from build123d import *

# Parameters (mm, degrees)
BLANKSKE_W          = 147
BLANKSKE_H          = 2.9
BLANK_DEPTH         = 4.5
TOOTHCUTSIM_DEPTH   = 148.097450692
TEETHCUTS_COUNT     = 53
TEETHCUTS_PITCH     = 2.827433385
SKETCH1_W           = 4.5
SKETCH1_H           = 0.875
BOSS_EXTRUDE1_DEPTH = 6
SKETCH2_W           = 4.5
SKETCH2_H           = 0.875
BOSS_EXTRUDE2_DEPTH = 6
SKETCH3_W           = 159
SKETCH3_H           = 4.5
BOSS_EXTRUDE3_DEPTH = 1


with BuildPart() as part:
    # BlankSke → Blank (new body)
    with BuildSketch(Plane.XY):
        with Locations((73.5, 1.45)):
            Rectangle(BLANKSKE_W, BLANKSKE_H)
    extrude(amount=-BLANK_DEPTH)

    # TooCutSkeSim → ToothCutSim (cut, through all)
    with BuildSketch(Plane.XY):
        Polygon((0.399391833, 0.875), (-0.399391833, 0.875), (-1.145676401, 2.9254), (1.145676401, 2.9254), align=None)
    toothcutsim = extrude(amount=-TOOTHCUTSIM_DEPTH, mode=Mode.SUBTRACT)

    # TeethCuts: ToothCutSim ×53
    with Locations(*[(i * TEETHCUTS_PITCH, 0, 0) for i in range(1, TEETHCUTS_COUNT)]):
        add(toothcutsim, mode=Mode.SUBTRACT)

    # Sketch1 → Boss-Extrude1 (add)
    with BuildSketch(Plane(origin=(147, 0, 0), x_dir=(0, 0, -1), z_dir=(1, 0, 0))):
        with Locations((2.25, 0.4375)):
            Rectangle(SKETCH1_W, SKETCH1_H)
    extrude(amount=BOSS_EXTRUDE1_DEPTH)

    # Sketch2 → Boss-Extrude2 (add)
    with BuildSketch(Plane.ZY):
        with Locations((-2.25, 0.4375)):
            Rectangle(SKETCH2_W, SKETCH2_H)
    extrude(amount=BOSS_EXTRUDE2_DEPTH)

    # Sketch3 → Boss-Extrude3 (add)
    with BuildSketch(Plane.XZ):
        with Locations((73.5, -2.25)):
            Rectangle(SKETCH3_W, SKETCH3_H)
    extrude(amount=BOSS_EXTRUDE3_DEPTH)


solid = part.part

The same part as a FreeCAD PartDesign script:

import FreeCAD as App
import Part
import Sketcher

V = App.Vector
Q = App.Units.Quantity


def add_polygon(sketch, points):
    """Adds a closed chain of lines whose ends are joined by coincident constraints."""
    first, n = sketch.GeometryCount, len(points)
    for a, b in zip(points, points[1:] + points[:1]):
        sketch.addGeometry(Part.LineSegment(App.Vector(*a, 0), App.Vector(*b, 0)), False)
    for i in range(n):
        sketch.addConstraint(Sketcher.Constraint("Coincident", first + i, 2, first + (i + 1) % n, 1))

doc = App.newDocument("Part")
body = doc.addObject("PartDesign::Body", "Body")

sketch1 = doc.addObject("Sketcher::SketchObject", "Sketch")
body.addObject(sketch1)
sketch1.AttachmentSupport = (doc.XY_Plane, [""])
sketch1.MapMode = "FlatFace"
add_polygon(sketch1, [(0, 2.9), (0, 0), (147, 0), (147, 2.9)])
sketch1.addConstraint([
    Sketcher.Constraint("Vertical", 0),
    Sketcher.Constraint("Horizontal", 1),
    Sketcher.Constraint("Vertical", 2),
    Sketcher.Constraint("Horizontal", 3),
    Sketcher.Constraint("Coincident", 0, 2, -1, 1),
    Sketcher.Constraint("DistanceX", 1, 1, 1, 2, Q("147 mm")),
    Sketcher.Constraint("DistanceY", 0, 2, 0, 1, Q("2.9 mm")),
])
pad1 = doc.addObject("PartDesign::Pad", "Pad")
body.addObject(pad1)
pad1.Profile = sketch1
pad1.Length = 4.5
pad1.Reversed = True

sketch2 = doc.addObject("Sketcher::SketchObject", "Sketch001")
body.addObject(sketch2)
sketch2.AttachmentSupport = (doc.XY_Plane, [""])
sketch2.MapMode = "FlatFace"
add_polygon(sketch2, [(-0.4, 0.9), (0.4, 0.9), (1.1, 2.9), (-1.1, 2.9)])
sketch2.addConstraint([
    Sketcher.Constraint("Horizontal", 0),
    Sketcher.Constraint("Horizontal", 2),
    Sketcher.Constraint("Equal", 1, 3),
    Sketcher.Constraint("Angle", 1, Q("70 deg")),
    Sketcher.Constraint("DistanceY", -1, 1, 0, 2, Q("0.875 mm")),
    Sketcher.Constraint("DistanceY", -1, 1, 1, 2, Q("2.9254 mm")),
    Sketcher.Constraint("DistanceX", 0, 1, 0, 2, Q("0.798784 mm")),
    Sketcher.Constraint("DistanceX", -1, 1, 0, 2, Q("0.399392 mm")),
])
pocket1 = doc.addObject("PartDesign::Pocket", "Pocket")
body.addObject(pocket1)
pocket1.Profile = sketch2
pocket1.Type = "ThroughAll"
doc.recompute()

linearpattern = doc.addObject("PartDesign::LinearPattern", "LinearPattern")
body.addObject(linearpattern)
linearpattern.Originals = [pocket1]
linearpattern.Direction = (doc.X_Axis, [""])
linearpattern.Mode = "offset"
linearpattern.Offset = 2.827433
linearpattern.Occurrences = 53
body.Tip = linearpattern

sketch3 = doc.addObject("Sketcher::SketchObject", "Sketch002")
body.addObject(sketch3)
sketch3.AttachmentSupport = (doc.YZ_Plane, [""])
sketch3.MapMode = "FlatFace"
sketch3.AttachmentOffset = App.Placement(V(0, 0, 147), App.Rotation())
add_polygon(sketch3, [(0.9, 0), (0, 0), (0, -4.5), (0.9, -4.5)])
sketch3.addConstraint([
    Sketcher.Constraint("Horizontal", 0),
    Sketcher.Constraint("Vertical", 1),
    Sketcher.Constraint("Horizontal", 2),
    Sketcher.Constraint("Vertical", 3),
    Sketcher.Constraint("Coincident", 0, 2, -1, 1),
    Sketcher.Constraint("DistanceY", 1, 2, 1, 1, Q("4.5 mm")),
    Sketcher.Constraint("DistanceX", 0, 2, 0, 1, Q("0.875 mm")),
])
pad2 = doc.addObject("PartDesign::Pad", "Pad001")
body.addObject(pad2)
pad2.Profile = sketch3
pad2.Length = 6

sketch4 = doc.addObject("Sketcher::SketchObject", "Sketch003")
body.addObject(sketch4)
sketch4.AttachmentSupport = (doc.YZ_Plane, [""])
sketch4.MapMode = "FlatFace"
add_polygon(sketch4, [(0.9, -4.5), (0, -4.5), (0, 0), (0.9, 0)])
sketch4.addConstraint([
    Sketcher.Constraint("Horizontal", 0),
    Sketcher.Constraint("Vertical", 1),
    Sketcher.Constraint("Horizontal", 2),
    Sketcher.Constraint("Vertical", 3),
    Sketcher.Constraint("Coincident", 1, 2, -1, 1),
    Sketcher.Constraint("DistanceY", 1, 1, 1, 2, Q("4.5 mm")),
    Sketcher.Constraint("DistanceX", 0, 2, 0, 1, Q("0.875 mm")),
])
pad3 = doc.addObject("PartDesign::Pad", "Pad002")
body.addObject(pad3)
pad3.Profile = sketch4
pad3.Length = 6
pad3.Reversed = True

sketch5 = doc.addObject("Sketcher::SketchObject", "Sketch004")
body.addObject(sketch5)
sketch5.AttachmentSupport = (doc.XZ_Plane, [""])
sketch5.MapMode = "FlatFace"
add_polygon(sketch5, [(-6, 0), (-6, -4.5), (153, -4.5), (153, 0)])
sketch5.addConstraint([
    Sketcher.Constraint("Vertical", 0),
    Sketcher.Constraint("Horizontal", 1),
    Sketcher.Constraint("Vertical", 2),
    Sketcher.Constraint("Horizontal", 3),
    Sketcher.Constraint("PointOnObject", 2, 2, -1),
    Sketcher.Constraint("DistanceX", 1, 1, 1, 2, Q("159 mm")),
    Sketcher.Constraint("DistanceY", 0, 2, 0, 1, Q("4.5 mm")),
    Sketcher.Constraint("DistanceX", 0, 2, -1, 1, Q("6 mm")),
])
pad4 = doc.addObject("PartDesign::Pad", "Pad003")
body.addObject(pad4)
pad4.Profile = sketch5
pad4.Length = 1

doc.recompute()
